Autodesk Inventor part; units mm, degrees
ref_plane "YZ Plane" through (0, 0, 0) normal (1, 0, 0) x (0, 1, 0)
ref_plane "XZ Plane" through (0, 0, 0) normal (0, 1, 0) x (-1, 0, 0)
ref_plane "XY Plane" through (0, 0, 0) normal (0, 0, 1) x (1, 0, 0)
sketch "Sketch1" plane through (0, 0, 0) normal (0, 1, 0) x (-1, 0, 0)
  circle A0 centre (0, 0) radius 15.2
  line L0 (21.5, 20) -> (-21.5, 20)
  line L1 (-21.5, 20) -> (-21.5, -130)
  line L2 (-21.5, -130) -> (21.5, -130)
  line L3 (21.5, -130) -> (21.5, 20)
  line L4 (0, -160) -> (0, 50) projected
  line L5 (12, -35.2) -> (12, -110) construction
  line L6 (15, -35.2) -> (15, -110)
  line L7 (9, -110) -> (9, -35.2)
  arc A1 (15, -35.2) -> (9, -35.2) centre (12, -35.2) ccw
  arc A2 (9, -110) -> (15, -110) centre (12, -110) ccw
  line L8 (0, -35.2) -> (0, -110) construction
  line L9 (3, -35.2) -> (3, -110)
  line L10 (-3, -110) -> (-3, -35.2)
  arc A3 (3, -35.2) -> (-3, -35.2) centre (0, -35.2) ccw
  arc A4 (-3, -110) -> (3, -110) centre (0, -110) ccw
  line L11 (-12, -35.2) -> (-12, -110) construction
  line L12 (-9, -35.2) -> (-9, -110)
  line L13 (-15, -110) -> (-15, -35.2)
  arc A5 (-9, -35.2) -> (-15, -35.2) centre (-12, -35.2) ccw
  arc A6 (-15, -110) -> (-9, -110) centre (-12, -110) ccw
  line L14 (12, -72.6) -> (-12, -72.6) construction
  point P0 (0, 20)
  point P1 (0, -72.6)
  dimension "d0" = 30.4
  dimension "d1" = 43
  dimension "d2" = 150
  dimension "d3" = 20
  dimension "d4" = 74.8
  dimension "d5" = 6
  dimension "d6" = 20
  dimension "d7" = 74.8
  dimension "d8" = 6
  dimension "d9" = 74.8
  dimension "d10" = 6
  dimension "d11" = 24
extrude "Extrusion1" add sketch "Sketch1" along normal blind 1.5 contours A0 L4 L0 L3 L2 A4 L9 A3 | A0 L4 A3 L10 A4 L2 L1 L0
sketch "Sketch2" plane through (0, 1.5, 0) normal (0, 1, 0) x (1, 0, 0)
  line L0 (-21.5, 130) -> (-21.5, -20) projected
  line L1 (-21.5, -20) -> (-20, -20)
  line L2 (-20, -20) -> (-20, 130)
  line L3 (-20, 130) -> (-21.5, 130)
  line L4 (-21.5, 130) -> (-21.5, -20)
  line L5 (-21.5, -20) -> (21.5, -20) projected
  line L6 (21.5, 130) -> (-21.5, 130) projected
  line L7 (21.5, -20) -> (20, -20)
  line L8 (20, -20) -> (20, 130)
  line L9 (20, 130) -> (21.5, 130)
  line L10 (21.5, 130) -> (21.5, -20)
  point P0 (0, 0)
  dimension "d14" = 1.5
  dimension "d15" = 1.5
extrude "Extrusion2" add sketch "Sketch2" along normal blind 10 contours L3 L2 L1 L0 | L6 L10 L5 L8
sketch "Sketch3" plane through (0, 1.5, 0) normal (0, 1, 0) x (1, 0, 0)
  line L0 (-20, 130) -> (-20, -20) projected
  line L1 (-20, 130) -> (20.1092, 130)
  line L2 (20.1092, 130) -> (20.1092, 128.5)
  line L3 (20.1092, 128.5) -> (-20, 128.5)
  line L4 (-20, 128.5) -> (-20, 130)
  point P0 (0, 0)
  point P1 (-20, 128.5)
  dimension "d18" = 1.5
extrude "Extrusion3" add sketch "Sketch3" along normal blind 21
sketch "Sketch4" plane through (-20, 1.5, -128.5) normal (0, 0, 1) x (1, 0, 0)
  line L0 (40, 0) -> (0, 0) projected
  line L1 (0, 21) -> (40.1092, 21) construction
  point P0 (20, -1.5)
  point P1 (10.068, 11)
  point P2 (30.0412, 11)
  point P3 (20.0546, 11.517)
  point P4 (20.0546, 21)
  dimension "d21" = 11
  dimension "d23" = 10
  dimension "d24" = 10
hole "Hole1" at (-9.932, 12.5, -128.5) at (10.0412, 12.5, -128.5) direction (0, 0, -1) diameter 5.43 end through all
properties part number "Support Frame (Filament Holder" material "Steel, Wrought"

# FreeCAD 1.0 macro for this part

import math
import FreeCAD as App
import Part
import Sketcher
from FreeCAD import Vector
Q = App.Units.Quantity


def add_polygon(sketch, points):
    """Adds a closed chain of lines whose ends are joined by coincident constraints."""
    first, n = sketch.GeometryCount, len(points)
    for a, b in zip(points, points[1:] + points[:1]):
        sketch.addGeometry(Part.LineSegment(App.Vector(*a, 0), App.Vector(*b, 0)), False)
    for i in range(n):
        sketch.addConstraint(Sketcher.Constraint("Coincident", first + i, 2, first + (i + 1) % n, 1))

doc = App.newDocument("Part")
body = doc.addObject("PartDesign::Body", "Body")

sketch1 = body.newObject("Sketcher::SketchObject", "Sketch")
sketch1.AttachmentSupport = (doc.getObject("XZ_Plane"), [""])
sketch1.MapMode = "FlatFace"
add_polygon(sketch1, [(-21.5, 20), (21.5, 20), (21.5, -130), (-21.5, -130)])
sketch1.addGeometry(Part.Circle(Vector(0, 0, 0), Vector(0, 0, 1), 15.2), False)
sketch1.addGeometry(Part.ArcOfCircle(Part.Circle(Vector(0, -110, 0), Vector(0, 0, 1), 3), math.radians(180), math.radians(360)), False)
sketch1.addGeometry(Part.LineSegment(Vector(3, -110, 0), Vector(3, -35.2, 0)), False)
sketch1.addGeometry(Part.ArcOfCircle(Part.Circle(Vector(0, -35.2, 0), Vector(0, 0, 1), 3), math.radians(0), math.radians(180)), False)
sketch1.addGeometry(Part.LineSegment(Vector(-3, -35.2, 0), Vector(-3, -110, 0)), False)
sketch1.addGeometry(Part.ArcOfCircle(Part.Circle(Vector(-12, -35.2, 0), Vector(0, 0, 1), 3), math.radians(0), math.radians(180)), False)
sketch1.addGeometry(Part.LineSegment(Vector(-15, -35.2, 0), Vector(-15, -110, 0)), False)
sketch1.addGeometry(Part.ArcOfCircle(Part.Circle(Vector(-12, -110, 0), Vector(0, 0, 1), 3), math.radians(180), math.radians(360)), False)
sketch1.addGeometry(Part.LineSegment(Vector(-9, -110, 0), Vector(-9, -35.2, 0)), False)
sketch1.addGeometry(Part.LineSegment(Vector(15, -110, 0), Vector(15, -35.2, 0)), False)
sketch1.addGeometry(Part.ArcOfCircle(Part.Circle(Vector(12, -35.2, 0), Vector(0, 0, 1), 3), math.radians(0), math.radians(180)), False)
sketch1.addGeometry(Part.LineSegment(Vector(9, -35.2, 0), Vector(9, -110, 0)), False)
sketch1.addGeometry(Part.ArcOfCircle(Part.Circle(Vector(12, -110, 0), Vector(0, 0, 1), 3), math.radians(180), math.radians(360)), False)
sketch1.addConstraint([
    Sketcher.Constraint("Tangent", 5, 2, 6, 1),
    Sketcher.Constraint("Tangent", 6, 2, 7, 1),
    Sketcher.Constraint("Tangent", 7, 2, 8, 1),
    Sketcher.Constraint("Tangent", 8, 2, 5, 1),
    Sketcher.Constraint("Tangent", 9, 2, 10, 1),
    Sketcher.Constraint("Tangent", 10, 2, 11, 1),
    Sketcher.Constraint("Tangent", 11, 2, 12, 1),
    Sketcher.Constraint("Tangent", 12, 2, 9, 1),
    Sketcher.Constraint("Tangent", 13, 2, 14, 1),
    Sketcher.Constraint("Tangent", 14, 2, 15, 1),
    Sketcher.Constraint("Tangent", 15, 2, 16, 1),
    Sketcher.Constraint("Tangent", 16, 2, 13, 1),
    Sketcher.Constraint("Horizontal", 0),
    Sketcher.Constraint("Vertical", 1),
    Sketcher.Constraint("Horizontal", 2),
    Sketcher.Constraint("Vertical", 3),
    Sketcher.Constraint("Vertical", 6),
    Sketcher.Constraint("Vertical", 8),
    Sketcher.Constraint("Vertical", 10),
    Sketcher.Constraint("Vertical", 12),
    Sketcher.Constraint("Vertical", 13),
    Sketcher.Constraint("Vertical", 15),
    Sketcher.Constraint("Coincident", 4, 3, -1, 1),
    Sketcher.Constraint("Equal", 7, 9),
    Sketcher.Constraint("Equal", 11, 14),
    Sketcher.Constraint("Symmetric", 9, 3, 14, 3, -2),
    Sketcher.Constraint("PointOnObject", 5, 3, -2),
    Sketcher.Constraint("Horizontal", 7, 3, 9, 3),
    Sketcher.Constraint("Horizontal", 5, 3, 11, 3),
    Sketcher.Constraint("Horizontal", 11, 3, 16, 3),
    Sketcher.Constraint("Radius", 5, Q("3 mm")),
    Sketcher.Constraint("Diameter", 4, Q("30.4 mm")),
    Sketcher.Constraint("DistanceX", 0, 1, 0, 2, Q("43 mm")),
    Sketcher.Constraint("DistanceY", 1, 2, 1, 1, Q("150 mm")),
    Sketcher.Constraint("DistanceY", 6, 1, 6, 2, Q("74.8 mm")),
    Sketcher.Constraint("DistanceY", -1, 1, 0, 2, Q("20 mm")),
    Sketcher.Constraint("DistanceX", 9, 3, 14, 3, Q("24 mm")),
    Sketcher.Constraint("DistanceY", 1, 2, 16, 3, Q("20 mm")),
    Sketcher.Constraint("DistanceX", -1, 1, 0, 2, Q("21.5 mm")),
])
pad1 = body.newObject("PartDesign::Pad", "Pad")
pad1.Profile = sketch1
pad1.Length = 1.5
pad1.Reversed = True

sketch2 = body.newObject("Sketcher::SketchObject", "Sketch001")
sketch2.AttachmentSupport = (doc.getObject("XZ_Plane"), [""])
sketch2.MapMode = "FlatFace"
sketch2.AttachmentOffset = App.Placement(Vector(0, 0, -1.5), App.Rotation())
add_polygon(sketch2, [(-20, -130), (-21.5, -130), (-21.5, 20), (-20, 20)])
add_polygon(sketch2, [(21.5, -130), (20, -130), (20, 20), (21.5, 20)])
sketch2.addConstraint([
    Sketcher.Constraint("Horizontal", 0),
    Sketcher.Constraint("Vertical", 1),
    Sketcher.Constraint("Horizontal", 2),
    Sketcher.Constraint("Vertical", 3),
    Sketcher.Constraint("Horizontal", 4),
    Sketcher.Constraint("Vertical", 5),
    Sketcher.Constraint("Horizontal", 6),
    Sketcher.Constraint("Vertical", 7),
    Sketcher.Constraint("Symmetric", 3, 2, 4, 2, -2),
    Sketcher.Constraint("Symmetric", 1, 2, 6, 2, -2),
    Sketcher.Constraint("DistanceX", 0, 2, 0, 1, Q("1.5 mm")),
    Sketcher.Constraint("DistanceY", 1, 1, 1, 2, Q("150 mm")),
    Sketcher.Constraint("DistanceY", 0, 2, -1, 1, Q("130 mm")),
    Sketcher.Constraint("DistanceX", 2, 2, -1, 1, Q("20 mm")),
])
pad2 = body.newObject("PartDesign::Pad", "Pad001")
pad2.Profile = sketch2
pad2.Length = 10
pad2.Reversed = True

sketch3 = body.newObject("Sketcher::SketchObject", "Sketch002")
sketch3.AttachmentSupport = (doc.getObject("XZ_Plane"), [""])
sketch3.MapMode = "FlatFace"
sketch3.AttachmentOffset = App.Placement(Vector(0, 0, -1.5), App.Rotation())
add_polygon(sketch3, [(20.1, -130), (-20, -130), (-20, -128.5), (20.1, -128.5)])
sketch3.addConstraint([
    Sketcher.Constraint("Horizontal", 0),
    Sketcher.Constraint("Vertical", 1),
    Sketcher.Constraint("Horizontal", 2),
    Sketcher.Constraint("Vertical", 3),
    Sketcher.Constraint("DistanceY", 1, 1, 1, 2, Q("1.5 mm")),
    Sketcher.Constraint("DistanceX", 0, 2, -1, 1, Q("20 mm")),
    Sketcher.Constraint("DistanceY", 0, 2, -1, 1, Q("130 mm")),
    Sketcher.Constraint("DistanceX", 0, 2, 0, 1, Q("40.1092 mm")),
])
pad3 = body.newObject("PartDesign::Pad", "Pad002")
pad3.Profile = sketch3
pad3.Length = 21
pad3.Reversed = True

sketch4 = body.newObject("Sketcher::SketchObject", "Sketch003")
sketch4.AttachmentSupport = (doc.getObject("XY_Plane"), [""])
sketch4.MapMode = "FlatFace"
sketch4.AttachmentOffset = App.Placement(Vector(0, 0, -128.5), App.Rotation())
sketch4.addGeometry([
    Part.Circle(Vector(-9.9, 12.5, 0), Vector(0, 0, 1), 2.7),
    Part.Circle(Vector(10, 12.5, 0), Vector(0, 0, 1), 2.7),
], False)
sketch4.addConstraint([
    Sketcher.Constraint("Equal", 0, 1),
    Sketcher.Constraint("Horizontal", 0, 3, 1, 3),
    Sketcher.Constraint("Diameter", 0, Q("5.43 mm")),
    Sketcher.Constraint("DistanceY", -1, 1, 0, 3, Q("12.5 mm")),
    Sketcher.Constraint("DistanceX", 0, 3, -1, 1, Q("9.932 mm")),
    Sketcher.Constraint("DistanceX", -1, 1, 1, 3, Q("10.0412 mm")),
])
doc.recompute()
hole = body.newObject("PartDesign::Hole", "Hole")
hole.Profile = sketch4
hole.ThreadType = "None"
hole.Diameter = 5.43
hole.DepthType = "ThroughAll"

doc.recompute()
